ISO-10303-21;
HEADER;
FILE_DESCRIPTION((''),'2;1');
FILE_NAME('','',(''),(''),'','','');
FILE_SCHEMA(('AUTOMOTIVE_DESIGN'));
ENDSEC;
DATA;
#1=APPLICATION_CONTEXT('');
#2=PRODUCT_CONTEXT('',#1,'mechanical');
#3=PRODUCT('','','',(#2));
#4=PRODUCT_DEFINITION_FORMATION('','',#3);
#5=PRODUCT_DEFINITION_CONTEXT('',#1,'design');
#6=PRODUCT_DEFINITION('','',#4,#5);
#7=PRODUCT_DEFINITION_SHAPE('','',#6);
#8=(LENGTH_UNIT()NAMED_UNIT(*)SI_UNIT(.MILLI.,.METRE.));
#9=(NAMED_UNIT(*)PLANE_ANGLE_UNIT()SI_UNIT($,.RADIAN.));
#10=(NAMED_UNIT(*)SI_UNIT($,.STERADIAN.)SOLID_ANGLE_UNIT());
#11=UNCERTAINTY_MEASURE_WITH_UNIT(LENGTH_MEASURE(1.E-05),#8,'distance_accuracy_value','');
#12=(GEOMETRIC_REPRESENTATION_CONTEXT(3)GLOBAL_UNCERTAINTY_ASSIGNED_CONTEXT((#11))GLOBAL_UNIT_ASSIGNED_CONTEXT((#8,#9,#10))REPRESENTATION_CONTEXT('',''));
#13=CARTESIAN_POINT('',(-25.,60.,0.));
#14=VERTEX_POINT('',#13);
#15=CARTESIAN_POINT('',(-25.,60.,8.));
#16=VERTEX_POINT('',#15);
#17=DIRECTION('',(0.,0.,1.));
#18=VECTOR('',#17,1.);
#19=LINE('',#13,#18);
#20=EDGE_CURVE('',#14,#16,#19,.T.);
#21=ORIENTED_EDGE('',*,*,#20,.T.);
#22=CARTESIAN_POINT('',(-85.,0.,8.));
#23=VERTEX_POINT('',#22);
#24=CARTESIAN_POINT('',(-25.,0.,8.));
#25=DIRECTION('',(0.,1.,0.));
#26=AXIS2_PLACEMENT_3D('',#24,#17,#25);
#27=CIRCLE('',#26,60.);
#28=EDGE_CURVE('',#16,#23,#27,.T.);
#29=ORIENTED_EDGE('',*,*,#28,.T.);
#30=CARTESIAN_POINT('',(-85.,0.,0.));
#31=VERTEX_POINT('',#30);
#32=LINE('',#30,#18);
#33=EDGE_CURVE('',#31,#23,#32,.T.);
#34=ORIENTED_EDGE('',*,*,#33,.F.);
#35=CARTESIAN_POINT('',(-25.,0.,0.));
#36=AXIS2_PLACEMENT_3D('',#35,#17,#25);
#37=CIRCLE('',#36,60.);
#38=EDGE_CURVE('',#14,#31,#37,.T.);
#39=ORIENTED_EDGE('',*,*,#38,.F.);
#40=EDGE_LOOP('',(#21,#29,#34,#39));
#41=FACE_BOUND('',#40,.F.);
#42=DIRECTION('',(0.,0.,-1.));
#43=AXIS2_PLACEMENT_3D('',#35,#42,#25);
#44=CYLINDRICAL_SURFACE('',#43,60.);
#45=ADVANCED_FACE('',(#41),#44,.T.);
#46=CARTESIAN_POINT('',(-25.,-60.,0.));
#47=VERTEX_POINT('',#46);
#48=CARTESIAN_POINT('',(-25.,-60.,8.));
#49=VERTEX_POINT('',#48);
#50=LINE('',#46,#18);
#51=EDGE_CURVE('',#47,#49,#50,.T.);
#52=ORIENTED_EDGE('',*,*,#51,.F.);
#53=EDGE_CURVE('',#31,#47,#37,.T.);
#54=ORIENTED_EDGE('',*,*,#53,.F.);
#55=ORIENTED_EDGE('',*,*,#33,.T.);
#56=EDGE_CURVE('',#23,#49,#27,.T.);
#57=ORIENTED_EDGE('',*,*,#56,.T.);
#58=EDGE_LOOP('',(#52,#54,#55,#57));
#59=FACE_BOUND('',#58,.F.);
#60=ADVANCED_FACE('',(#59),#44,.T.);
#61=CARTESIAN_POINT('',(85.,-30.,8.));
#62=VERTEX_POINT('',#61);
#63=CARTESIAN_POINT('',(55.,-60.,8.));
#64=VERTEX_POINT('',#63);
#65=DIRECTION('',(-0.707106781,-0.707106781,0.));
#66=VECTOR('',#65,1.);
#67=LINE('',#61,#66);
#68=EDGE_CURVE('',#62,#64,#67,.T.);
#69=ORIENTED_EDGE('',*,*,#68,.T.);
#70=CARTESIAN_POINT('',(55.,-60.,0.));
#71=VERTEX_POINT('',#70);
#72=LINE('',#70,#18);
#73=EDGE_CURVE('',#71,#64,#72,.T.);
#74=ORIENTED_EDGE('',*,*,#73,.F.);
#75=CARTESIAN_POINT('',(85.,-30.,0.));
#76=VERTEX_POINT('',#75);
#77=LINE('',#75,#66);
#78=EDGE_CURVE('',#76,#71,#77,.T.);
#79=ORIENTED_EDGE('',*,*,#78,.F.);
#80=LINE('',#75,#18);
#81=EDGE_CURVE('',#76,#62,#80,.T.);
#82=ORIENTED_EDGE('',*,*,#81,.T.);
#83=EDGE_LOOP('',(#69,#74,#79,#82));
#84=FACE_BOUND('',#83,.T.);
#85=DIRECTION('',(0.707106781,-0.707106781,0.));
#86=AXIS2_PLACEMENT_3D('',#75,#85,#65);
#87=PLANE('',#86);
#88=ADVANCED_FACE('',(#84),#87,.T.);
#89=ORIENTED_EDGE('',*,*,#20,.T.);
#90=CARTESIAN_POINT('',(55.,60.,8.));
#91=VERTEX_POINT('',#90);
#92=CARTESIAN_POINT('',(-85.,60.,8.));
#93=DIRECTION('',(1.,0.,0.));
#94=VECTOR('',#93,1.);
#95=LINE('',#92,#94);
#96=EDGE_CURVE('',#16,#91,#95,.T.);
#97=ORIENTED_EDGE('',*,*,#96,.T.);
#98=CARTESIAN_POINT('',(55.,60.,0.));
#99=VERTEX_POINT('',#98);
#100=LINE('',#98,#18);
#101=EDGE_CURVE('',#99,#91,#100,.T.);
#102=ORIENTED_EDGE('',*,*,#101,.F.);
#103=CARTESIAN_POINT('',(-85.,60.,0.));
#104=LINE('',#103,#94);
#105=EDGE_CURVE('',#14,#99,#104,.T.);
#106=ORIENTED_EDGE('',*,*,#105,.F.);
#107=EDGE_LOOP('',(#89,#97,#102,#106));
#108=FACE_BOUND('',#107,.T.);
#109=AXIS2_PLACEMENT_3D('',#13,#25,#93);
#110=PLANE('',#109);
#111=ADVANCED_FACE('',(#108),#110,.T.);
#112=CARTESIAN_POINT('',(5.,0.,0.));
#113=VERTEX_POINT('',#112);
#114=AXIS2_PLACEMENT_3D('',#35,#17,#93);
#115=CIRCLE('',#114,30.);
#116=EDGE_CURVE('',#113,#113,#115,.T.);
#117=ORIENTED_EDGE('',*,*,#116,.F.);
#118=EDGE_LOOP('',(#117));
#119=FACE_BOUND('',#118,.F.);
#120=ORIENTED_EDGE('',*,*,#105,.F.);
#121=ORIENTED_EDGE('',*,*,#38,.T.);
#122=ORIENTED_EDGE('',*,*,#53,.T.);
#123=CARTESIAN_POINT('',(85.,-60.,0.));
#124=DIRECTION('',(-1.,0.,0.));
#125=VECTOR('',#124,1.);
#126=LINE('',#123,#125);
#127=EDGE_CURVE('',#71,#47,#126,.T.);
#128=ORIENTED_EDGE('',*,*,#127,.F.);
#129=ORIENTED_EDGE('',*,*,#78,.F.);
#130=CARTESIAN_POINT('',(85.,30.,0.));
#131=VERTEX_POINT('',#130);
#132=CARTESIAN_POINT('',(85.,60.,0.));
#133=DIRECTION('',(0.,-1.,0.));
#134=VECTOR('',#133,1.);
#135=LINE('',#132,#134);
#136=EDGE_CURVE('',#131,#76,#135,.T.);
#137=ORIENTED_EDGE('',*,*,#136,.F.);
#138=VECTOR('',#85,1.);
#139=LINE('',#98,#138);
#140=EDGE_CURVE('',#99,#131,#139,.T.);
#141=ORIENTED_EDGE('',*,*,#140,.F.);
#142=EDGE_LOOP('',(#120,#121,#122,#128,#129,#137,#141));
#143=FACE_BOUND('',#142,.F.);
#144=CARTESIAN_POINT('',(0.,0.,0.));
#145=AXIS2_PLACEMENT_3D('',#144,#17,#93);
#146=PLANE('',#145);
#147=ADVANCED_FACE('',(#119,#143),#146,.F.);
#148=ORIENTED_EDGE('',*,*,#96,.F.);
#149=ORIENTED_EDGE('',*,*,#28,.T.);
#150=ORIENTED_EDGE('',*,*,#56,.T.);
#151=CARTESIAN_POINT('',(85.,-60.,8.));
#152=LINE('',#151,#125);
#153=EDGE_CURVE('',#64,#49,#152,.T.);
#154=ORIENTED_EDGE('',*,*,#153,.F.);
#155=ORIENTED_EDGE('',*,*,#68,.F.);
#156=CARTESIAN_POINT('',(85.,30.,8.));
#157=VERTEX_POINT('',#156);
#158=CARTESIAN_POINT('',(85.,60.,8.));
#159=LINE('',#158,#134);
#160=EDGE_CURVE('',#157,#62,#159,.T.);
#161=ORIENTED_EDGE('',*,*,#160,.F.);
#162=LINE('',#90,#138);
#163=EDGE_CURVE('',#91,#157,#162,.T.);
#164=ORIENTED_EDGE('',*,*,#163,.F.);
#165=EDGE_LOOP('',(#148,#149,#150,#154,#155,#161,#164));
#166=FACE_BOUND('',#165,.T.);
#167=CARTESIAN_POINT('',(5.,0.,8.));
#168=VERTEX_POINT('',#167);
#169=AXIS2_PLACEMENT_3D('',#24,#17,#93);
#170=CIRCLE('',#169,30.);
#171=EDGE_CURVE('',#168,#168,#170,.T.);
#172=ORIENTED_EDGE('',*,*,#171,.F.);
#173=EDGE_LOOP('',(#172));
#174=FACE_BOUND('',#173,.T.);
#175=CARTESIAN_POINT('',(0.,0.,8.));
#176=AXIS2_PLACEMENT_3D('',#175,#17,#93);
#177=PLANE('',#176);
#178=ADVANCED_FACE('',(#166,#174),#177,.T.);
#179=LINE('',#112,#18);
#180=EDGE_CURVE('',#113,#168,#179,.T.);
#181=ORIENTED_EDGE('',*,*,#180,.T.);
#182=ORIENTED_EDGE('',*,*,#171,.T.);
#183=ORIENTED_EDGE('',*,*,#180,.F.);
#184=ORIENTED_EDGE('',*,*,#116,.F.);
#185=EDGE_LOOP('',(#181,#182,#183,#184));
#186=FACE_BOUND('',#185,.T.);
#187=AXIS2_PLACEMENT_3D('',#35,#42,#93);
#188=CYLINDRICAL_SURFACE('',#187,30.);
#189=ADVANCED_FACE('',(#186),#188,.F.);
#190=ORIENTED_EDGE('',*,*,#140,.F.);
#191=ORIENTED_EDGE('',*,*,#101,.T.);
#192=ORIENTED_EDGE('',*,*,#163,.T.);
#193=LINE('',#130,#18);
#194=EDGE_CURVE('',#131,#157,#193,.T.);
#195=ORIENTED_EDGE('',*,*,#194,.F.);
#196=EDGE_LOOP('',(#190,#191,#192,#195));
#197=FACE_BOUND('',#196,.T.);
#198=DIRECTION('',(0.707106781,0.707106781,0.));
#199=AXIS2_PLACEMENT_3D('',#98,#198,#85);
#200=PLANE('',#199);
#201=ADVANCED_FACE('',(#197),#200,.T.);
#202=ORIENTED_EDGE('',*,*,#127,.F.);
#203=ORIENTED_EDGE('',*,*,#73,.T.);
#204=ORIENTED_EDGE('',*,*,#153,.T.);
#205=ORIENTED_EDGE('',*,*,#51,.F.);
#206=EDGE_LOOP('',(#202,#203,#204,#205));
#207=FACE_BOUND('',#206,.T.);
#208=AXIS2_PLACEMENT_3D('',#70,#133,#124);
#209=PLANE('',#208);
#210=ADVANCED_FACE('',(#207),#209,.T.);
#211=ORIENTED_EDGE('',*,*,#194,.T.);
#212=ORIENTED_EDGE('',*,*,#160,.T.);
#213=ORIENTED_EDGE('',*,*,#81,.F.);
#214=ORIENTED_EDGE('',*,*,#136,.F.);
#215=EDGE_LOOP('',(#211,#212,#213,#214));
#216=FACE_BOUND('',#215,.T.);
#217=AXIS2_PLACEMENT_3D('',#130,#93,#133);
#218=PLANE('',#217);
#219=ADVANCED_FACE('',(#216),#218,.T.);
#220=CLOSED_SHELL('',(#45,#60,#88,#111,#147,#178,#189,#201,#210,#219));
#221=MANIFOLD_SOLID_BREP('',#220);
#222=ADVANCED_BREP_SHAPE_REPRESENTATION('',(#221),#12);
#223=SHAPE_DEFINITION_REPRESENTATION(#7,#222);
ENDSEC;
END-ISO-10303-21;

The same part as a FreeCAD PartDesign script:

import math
import FreeCAD as App
import Part
import Sketcher

V = App.Vector
Q = App.Units.Quantity

doc = App.newDocument("Part")
body = doc.addObject("PartDesign::Body", "Body")

sketch1 = body.newObject("Sketcher::SketchObject", "Sketch")
sketch1.AttachmentSupport = (doc.getObject("XY_Plane"), [""])
sketch1.MapMode = "FlatFace"
sketch1.addGeometry([
    Part.LineSegment(V(55, 60, 0), V(-25, 60, 0)),
    Part.ArcOfCircle(Part.Circle(V(-25, 0, 0), V(0, 0, 1), 60), math.radians(90), math.radians(270)),
    Part.LineSegment(V(-25, -60, 0), V(55, -60, 0)),
    Part.LineSegment(V(55, -60, 0), V(85, -30, 0)),
    Part.LineSegment(V(85, -30, 0), V(85, 30, 0)),
    Part.LineSegment(V(85, 30, 0), V(55, 60, 0)),
    Part.Circle(V(-25, 0, 0), V(0, 0, 1), 30),
], False)
sketch1.addConstraint([
    Sketcher.Constraint("Tangent", 0, 2, 1, 1),
    Sketcher.Constraint("Tangent", 1, 2, 2, 1),
    Sketcher.Constraint("Coincident", 2, 2, 3, 1),
    Sketcher.Constraint("Coincident", 3, 2, 4, 1),
    Sketcher.Constraint("Coincident", 4, 2, 5, 1),
    Sketcher.Constraint("Coincident", 5, 2, 0, 1),
    Sketcher.Constraint("Horizontal", 0),
    Sketcher.Constraint("Horizontal", 2),
    Sketcher.Constraint("Vertical", 4),
    Sketcher.Constraint("Coincident", 6, 3, 1, 3),
    Sketcher.Constraint("Symmetric", 2, 2, 5, 2, -1),
    Sketcher.Constraint("Perpendicular", 3, 5),
    Sketcher.Constraint("Equal", 3, 5),
    Sketcher.Constraint("Diameter", 6, Q("60 mm")),
    Sketcher.Constraint("Radius", 1, Q("60 mm")),
    Sketcher.Constraint("DistanceY", 4, 1, 4, 2, Q("60 mm")),
    Sketcher.Constraint("DistanceX", 0, 2, 0, 1, Q("80 mm")),
    Sketcher.Constraint("DistanceX", 1, 3, -1, 1, Q("25 mm")),
])
pad1 = body.newObject("PartDesign::Pad", "Pad")
pad1.Profile = sketch1
pad1.Length = 8

doc.recompute()
